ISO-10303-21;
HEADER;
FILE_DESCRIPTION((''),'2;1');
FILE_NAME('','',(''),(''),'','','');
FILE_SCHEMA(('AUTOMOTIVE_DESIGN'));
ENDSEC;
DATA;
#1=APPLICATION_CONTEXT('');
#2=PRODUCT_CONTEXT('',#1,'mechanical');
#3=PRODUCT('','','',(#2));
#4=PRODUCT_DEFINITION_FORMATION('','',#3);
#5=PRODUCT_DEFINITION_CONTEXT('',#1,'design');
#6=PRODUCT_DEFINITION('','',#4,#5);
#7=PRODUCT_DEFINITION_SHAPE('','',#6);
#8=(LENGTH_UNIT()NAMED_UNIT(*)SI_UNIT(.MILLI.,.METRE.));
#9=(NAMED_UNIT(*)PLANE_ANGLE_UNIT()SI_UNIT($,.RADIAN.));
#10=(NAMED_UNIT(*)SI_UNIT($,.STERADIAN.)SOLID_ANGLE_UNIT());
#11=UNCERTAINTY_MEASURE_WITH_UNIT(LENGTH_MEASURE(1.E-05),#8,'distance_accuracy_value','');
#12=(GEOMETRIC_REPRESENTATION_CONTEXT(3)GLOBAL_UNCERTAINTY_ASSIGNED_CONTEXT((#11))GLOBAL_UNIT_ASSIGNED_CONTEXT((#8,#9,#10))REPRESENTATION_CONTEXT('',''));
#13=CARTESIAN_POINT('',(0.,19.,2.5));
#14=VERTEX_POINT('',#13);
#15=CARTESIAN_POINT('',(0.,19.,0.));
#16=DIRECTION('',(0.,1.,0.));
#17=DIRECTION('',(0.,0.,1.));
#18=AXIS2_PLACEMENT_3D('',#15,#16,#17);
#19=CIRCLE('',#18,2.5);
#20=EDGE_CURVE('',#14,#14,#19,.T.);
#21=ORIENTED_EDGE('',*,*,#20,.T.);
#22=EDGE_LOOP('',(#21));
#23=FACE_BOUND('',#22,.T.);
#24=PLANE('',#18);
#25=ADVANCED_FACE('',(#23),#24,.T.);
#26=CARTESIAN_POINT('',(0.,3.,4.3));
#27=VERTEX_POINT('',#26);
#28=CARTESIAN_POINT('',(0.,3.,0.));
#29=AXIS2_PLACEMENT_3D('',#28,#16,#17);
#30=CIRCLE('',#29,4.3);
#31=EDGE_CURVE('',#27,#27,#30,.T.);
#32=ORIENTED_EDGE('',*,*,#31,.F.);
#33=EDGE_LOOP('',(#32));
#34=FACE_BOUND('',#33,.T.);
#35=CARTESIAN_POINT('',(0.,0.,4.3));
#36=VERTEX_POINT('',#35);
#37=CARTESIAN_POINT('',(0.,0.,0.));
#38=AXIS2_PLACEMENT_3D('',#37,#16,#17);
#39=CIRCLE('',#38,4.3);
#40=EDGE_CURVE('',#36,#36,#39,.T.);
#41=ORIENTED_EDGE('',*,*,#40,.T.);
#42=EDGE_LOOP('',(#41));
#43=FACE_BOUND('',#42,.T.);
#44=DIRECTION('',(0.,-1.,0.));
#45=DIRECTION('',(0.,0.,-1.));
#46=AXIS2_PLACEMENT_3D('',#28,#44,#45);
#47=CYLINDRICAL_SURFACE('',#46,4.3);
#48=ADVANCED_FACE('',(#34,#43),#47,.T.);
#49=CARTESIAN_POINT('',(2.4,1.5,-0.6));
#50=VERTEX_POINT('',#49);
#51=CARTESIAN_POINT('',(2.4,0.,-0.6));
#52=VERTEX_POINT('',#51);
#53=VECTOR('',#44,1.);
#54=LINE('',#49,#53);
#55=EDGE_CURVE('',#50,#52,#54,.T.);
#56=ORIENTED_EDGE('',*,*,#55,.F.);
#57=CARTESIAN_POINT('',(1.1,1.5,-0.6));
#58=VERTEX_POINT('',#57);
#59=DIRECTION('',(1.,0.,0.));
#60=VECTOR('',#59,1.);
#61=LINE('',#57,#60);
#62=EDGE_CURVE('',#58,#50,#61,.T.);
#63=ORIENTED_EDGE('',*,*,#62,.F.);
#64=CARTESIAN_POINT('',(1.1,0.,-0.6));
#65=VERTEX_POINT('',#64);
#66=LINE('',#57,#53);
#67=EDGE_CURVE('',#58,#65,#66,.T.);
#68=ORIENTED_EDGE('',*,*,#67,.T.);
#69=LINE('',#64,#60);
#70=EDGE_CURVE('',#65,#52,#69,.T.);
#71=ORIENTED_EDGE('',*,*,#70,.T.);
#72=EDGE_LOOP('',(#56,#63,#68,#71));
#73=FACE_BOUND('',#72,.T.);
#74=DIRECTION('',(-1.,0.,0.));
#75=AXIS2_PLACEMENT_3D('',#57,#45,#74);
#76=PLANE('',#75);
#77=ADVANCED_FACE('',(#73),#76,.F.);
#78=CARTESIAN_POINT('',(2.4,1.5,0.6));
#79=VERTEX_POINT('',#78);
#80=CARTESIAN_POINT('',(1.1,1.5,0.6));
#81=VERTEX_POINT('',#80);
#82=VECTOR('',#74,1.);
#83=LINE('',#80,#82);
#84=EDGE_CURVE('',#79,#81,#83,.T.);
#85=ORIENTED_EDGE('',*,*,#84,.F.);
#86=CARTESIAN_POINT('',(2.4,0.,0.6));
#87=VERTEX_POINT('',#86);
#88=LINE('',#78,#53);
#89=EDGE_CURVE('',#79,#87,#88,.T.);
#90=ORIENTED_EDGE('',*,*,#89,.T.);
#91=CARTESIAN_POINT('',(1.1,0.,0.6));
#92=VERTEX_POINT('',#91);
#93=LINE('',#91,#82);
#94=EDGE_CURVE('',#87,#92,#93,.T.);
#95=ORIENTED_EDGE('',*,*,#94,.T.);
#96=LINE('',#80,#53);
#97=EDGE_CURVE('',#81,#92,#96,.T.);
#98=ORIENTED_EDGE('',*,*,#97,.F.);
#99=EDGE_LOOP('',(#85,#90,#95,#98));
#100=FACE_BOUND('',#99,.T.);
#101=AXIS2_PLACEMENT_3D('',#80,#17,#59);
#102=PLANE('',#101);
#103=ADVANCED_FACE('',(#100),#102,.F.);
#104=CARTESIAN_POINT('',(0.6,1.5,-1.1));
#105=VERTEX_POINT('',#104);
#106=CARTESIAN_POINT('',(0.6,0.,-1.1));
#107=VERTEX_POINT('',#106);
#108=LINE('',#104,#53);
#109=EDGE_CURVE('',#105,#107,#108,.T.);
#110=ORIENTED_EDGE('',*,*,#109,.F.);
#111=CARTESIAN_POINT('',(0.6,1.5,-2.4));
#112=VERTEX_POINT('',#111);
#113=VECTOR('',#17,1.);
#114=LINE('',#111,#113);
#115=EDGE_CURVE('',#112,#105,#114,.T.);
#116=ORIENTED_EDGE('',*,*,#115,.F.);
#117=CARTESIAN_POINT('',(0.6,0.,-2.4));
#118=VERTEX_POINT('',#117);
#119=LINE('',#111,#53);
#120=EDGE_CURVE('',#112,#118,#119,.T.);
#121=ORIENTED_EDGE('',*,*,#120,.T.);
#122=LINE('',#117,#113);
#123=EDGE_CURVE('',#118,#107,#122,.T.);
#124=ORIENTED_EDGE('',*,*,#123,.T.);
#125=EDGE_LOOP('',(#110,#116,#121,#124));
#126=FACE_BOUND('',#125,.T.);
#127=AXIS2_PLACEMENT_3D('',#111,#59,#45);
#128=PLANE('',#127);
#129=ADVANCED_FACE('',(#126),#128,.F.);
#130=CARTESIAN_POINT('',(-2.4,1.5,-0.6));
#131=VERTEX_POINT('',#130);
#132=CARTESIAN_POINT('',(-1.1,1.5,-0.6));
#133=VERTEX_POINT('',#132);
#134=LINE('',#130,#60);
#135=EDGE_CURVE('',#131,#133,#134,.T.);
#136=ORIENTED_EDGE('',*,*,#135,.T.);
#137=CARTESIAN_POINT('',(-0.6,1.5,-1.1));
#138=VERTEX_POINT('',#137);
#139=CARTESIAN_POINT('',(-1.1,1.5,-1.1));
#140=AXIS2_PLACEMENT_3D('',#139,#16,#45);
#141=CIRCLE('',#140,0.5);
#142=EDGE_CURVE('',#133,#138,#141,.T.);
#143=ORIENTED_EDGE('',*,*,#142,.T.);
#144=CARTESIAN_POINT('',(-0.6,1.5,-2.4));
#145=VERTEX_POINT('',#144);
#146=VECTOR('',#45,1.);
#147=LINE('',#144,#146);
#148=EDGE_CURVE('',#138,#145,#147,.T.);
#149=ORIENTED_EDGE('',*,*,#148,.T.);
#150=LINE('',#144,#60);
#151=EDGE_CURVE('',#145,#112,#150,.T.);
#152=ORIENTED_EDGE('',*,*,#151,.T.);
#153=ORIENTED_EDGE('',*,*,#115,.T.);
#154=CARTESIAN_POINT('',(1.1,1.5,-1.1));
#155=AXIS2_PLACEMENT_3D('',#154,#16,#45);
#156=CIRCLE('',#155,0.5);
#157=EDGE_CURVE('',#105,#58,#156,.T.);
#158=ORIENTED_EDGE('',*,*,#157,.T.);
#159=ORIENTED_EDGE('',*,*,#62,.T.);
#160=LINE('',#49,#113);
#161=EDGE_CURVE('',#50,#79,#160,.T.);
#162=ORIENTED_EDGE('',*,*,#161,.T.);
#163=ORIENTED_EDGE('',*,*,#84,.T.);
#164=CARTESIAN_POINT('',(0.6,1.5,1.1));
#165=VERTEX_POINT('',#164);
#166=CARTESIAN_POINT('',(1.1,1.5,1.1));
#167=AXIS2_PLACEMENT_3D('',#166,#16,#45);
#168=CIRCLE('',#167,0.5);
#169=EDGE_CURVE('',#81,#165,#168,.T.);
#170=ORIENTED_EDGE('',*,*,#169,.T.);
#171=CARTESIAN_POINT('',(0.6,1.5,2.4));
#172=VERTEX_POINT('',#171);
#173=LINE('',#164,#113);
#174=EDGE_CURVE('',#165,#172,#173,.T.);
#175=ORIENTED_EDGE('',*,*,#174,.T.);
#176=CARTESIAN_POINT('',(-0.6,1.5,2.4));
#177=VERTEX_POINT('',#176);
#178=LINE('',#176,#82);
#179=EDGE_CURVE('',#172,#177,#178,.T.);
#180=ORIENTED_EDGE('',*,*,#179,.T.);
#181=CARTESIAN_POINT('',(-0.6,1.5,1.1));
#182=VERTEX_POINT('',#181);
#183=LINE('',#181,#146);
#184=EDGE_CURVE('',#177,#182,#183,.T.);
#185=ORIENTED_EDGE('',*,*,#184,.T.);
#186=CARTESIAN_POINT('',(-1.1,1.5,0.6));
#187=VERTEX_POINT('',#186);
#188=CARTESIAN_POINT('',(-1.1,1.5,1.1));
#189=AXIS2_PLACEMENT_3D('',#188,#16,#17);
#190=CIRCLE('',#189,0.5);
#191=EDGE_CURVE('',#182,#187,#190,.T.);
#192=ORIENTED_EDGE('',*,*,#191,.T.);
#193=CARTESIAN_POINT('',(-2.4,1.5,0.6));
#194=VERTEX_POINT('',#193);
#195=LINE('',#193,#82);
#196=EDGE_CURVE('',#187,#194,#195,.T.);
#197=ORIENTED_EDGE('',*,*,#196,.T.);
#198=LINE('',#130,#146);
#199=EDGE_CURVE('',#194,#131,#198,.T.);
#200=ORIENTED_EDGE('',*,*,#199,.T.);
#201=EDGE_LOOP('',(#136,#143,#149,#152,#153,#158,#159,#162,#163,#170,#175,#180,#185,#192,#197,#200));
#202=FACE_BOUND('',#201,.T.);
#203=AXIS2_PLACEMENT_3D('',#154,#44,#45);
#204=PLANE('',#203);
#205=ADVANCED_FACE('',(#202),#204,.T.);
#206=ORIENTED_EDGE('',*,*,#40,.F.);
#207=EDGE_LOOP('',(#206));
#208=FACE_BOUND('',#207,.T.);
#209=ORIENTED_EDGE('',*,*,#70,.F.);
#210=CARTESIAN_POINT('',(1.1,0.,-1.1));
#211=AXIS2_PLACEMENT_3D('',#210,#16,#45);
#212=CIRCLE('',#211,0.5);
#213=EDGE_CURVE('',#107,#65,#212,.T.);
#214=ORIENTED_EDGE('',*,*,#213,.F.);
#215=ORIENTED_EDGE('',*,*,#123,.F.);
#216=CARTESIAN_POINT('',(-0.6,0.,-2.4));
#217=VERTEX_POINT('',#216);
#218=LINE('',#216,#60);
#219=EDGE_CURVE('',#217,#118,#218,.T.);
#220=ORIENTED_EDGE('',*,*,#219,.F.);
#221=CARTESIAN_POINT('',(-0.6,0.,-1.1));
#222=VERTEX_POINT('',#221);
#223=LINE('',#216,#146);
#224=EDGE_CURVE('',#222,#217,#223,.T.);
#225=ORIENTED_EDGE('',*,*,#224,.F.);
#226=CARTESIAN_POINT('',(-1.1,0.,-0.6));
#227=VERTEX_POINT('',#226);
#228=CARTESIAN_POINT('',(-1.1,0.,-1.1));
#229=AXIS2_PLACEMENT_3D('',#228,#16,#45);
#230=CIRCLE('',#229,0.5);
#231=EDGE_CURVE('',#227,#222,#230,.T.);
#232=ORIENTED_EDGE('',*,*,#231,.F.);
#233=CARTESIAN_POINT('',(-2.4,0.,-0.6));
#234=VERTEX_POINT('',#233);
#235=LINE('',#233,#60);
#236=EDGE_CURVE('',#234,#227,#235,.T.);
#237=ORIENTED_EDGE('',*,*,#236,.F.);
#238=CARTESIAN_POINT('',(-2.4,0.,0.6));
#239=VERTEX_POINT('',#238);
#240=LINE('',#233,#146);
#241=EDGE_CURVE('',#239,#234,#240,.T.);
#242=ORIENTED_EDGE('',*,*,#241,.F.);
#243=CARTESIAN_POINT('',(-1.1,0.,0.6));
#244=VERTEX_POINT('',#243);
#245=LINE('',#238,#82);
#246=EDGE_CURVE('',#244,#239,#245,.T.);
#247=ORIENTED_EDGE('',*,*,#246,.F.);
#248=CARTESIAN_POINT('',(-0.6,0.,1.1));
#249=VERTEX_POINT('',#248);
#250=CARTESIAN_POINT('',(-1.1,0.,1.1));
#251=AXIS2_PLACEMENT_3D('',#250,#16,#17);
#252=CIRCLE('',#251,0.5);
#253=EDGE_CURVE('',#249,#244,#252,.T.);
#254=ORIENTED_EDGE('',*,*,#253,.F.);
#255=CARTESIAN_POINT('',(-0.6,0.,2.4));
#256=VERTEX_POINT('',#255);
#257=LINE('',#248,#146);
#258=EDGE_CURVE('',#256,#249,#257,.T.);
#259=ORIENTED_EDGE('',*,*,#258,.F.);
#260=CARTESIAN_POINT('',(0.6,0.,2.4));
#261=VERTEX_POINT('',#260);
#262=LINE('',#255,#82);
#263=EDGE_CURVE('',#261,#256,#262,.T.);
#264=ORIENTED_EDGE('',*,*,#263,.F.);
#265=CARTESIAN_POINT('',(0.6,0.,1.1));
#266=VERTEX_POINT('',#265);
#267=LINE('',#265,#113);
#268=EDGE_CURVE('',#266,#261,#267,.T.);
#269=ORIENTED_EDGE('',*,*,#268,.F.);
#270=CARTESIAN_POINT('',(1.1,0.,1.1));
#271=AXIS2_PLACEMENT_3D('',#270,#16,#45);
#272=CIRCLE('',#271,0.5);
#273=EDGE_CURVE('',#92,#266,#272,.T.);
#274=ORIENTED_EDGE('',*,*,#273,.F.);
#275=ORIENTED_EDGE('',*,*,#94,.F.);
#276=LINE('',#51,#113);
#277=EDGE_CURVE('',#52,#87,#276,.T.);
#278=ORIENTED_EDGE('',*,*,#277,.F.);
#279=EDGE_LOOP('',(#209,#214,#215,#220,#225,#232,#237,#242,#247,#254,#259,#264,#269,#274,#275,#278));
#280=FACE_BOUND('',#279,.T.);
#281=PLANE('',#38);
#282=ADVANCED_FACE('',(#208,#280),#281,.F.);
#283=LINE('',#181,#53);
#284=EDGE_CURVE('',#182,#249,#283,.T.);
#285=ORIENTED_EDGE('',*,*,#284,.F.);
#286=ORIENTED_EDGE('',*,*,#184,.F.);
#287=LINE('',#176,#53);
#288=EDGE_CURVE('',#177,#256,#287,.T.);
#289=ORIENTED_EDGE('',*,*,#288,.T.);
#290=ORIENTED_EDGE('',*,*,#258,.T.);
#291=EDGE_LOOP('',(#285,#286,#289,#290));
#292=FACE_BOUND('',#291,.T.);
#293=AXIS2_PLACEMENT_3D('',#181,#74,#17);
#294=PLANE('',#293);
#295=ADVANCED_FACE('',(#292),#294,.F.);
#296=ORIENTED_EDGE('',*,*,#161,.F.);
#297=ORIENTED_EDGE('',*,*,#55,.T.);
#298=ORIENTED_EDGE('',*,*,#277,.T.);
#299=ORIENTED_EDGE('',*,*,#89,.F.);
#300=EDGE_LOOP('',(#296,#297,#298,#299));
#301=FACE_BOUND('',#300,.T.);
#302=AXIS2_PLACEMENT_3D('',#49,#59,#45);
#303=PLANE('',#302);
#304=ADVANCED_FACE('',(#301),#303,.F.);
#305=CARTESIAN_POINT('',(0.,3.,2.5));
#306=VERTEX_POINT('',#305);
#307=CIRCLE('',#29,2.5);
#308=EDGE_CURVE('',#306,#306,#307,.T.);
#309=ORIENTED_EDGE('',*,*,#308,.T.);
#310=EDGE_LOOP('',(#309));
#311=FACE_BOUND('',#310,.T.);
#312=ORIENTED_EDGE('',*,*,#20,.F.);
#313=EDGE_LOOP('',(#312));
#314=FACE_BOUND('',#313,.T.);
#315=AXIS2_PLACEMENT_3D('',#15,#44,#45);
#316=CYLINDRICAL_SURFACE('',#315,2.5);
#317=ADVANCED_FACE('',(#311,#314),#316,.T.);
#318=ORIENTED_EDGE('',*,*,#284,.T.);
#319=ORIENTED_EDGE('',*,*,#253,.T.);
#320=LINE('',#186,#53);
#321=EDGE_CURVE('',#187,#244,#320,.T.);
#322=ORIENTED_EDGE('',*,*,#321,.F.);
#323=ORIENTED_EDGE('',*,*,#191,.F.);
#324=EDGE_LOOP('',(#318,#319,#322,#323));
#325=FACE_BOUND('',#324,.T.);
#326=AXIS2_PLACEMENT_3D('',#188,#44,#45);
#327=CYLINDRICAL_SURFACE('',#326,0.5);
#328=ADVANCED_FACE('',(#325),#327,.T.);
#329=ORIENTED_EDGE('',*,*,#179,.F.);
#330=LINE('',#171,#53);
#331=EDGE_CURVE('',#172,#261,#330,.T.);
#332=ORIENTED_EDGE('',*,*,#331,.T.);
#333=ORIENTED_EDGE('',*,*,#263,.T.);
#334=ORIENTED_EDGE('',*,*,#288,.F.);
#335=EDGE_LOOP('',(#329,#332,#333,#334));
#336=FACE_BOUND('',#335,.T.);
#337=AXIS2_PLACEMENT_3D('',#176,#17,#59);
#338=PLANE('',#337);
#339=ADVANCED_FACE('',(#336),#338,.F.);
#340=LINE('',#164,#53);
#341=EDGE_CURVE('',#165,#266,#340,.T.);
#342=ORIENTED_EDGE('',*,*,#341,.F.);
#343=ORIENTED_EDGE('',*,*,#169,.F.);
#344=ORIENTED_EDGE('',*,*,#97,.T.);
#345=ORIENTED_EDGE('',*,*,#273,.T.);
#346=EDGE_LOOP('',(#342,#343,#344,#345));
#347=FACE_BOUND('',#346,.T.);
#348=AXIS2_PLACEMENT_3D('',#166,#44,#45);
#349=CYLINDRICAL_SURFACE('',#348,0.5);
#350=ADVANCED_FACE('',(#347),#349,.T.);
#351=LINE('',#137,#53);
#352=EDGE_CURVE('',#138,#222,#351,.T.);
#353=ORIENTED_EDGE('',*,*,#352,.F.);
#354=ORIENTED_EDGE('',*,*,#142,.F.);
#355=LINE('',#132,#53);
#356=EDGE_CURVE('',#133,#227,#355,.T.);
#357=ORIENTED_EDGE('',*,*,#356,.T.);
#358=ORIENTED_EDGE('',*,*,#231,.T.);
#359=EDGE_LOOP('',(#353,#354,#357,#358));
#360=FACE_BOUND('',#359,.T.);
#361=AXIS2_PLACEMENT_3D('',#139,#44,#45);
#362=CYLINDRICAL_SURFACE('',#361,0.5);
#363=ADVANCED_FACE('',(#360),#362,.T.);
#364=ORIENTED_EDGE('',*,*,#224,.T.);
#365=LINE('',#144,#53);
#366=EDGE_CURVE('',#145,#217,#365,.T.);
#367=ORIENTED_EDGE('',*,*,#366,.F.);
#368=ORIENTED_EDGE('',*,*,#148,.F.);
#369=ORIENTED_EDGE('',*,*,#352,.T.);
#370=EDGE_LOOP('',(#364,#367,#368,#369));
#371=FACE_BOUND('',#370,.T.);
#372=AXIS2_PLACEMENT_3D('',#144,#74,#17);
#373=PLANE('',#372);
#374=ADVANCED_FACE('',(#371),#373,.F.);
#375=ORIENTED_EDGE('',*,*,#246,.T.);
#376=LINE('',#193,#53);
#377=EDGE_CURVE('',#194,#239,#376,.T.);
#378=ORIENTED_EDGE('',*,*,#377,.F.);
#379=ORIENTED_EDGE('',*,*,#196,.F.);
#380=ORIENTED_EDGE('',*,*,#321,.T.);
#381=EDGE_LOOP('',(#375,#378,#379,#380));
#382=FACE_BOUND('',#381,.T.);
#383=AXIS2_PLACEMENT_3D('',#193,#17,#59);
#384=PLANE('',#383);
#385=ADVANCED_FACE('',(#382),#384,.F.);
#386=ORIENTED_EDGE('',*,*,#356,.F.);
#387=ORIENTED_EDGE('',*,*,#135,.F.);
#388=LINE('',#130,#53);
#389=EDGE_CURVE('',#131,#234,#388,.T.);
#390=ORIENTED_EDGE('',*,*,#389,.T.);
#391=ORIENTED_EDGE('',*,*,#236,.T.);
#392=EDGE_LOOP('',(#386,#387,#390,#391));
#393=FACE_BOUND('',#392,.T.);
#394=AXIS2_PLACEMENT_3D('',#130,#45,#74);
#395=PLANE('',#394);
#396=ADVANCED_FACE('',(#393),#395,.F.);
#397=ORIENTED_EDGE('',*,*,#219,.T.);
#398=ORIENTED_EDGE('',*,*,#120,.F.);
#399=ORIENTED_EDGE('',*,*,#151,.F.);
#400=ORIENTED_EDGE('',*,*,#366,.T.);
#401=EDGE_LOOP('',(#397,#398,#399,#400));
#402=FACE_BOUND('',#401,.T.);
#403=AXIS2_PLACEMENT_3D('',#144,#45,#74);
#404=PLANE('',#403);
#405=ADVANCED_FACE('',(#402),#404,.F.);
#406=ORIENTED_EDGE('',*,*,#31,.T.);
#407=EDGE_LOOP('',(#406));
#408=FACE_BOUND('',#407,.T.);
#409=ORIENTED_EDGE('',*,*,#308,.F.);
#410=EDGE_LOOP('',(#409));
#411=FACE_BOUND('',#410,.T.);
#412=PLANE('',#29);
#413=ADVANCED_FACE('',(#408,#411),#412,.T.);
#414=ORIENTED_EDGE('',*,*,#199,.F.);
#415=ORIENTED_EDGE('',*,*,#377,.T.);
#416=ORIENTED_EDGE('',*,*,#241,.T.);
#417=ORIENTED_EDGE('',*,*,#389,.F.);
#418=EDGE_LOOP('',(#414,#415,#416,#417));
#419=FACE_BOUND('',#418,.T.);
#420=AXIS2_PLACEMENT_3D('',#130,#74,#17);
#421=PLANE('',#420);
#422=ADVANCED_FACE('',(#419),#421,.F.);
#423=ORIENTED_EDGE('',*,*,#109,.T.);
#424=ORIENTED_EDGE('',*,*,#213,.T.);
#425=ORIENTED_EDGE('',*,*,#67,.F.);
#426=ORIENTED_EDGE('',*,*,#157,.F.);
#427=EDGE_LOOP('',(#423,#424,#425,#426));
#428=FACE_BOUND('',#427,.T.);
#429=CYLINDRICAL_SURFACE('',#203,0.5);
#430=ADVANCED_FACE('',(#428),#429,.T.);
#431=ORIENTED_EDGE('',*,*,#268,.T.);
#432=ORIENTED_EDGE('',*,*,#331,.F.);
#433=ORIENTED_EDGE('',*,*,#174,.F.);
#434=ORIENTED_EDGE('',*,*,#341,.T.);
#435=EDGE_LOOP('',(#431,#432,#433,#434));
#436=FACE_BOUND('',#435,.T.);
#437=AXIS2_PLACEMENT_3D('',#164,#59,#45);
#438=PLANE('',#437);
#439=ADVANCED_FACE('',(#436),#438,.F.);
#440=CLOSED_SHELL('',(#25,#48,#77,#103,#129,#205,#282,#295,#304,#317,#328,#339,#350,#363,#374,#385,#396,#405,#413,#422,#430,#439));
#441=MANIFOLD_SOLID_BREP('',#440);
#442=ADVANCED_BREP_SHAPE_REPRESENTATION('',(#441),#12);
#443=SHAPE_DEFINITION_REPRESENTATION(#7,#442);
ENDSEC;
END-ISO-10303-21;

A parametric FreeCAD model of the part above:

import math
import FreeCAD as App
import Part
import Sketcher

V = App.Vector
Q = App.Units.Quantity

doc = App.newDocument("Part")
body = doc.addObject("PartDesign::Body", "Body")

sketch1 = body.newObject("Sketcher::SketchObject", "Sketch")
sketch1.AttachmentSupport = (doc.getObject("XZ_Plane"), [""])
sketch1.MapMode = "FlatFace"
sketch1.addGeometry(Part.Circle(V(0, 0, 0), V(0, 0, 1), 4.3), False)
sketch1.addConstraint([
    Sketcher.Constraint("Coincident", 0, 3, -1, 1),
    Sketcher.Constraint("Diameter", 0, Q("8.6 mm")),
])
pad1 = body.newObject("PartDesign::Pad", "Pad")
pad1.Profile = sketch1
pad1.Length = 3
pad1.Reversed = True

sketch2 = body.newObject("Sketcher::SketchObject", "Sketch001")
sketch2.AttachmentSupport = (doc.getObject("XZ_Plane"), [""])
sketch2.MapMode = "FlatFace"
sketch2.AttachmentOffset = App.Placement(V(0, 0, -3), App.Rotation())
sketch2.addGeometry(Part.Circle(V(0, 0, 0), V(0, 0, 1), 2.5), False)
sketch2.addConstraint([
    Sketcher.Constraint("Coincident", 0, 3, -1, 1),
    Sketcher.Constraint("Diameter", 0, Q("5 mm")),
])
pad2 = body.newObject("PartDesign::Pad", "Pad001")
pad2.Profile = sketch2
pad2.Length = 16
pad2.Reversed = True

sketch3 = body.newObject("Sketcher::SketchObject", "Sketch002")
sketch3.AttachmentSupport = (doc.getObject("XZ_Plane"), [""])
sketch3.MapMode = "FlatFace"
sketch3.addGeometry([
    Part.LineSegment(V(-0.6, 2.4, 0), V(-0.6, 1.1, 0)),
    Part.ArcOfCircle(Part.Circle(V(-1.1, 1.1, 0), V(0, 0, 1), 0.5), math.radians(-90), math.radians(0)),
    Part.LineSegment(V(-1.1, 0.6, 0), V(-2.4, 0.6, 0)),
    Part.LineSegment(V(-2.4, 0.6, 0), V(-2.4, -0.6, 0)),
    Part.LineSegment(V(-2.4, -0.6, 0), V(-1.1, -0.6, 0)),
    Part.ArcOfCircle(Part.Circle(V(-1.1, -1.1, 0), V(0, 0, 1), 0.5), math.radians(0), math.radians(90)),
    Part.LineSegment(V(-0.6, -1.1, 0), V(-0.6, -2.4, 0)),
    Part.LineSegment(V(-0.6, -2.4, 0), V(0.6, -2.4, 0)),
    Part.LineSegment(V(0.6, -2.4, 0), V(0.6, -1.1, 0)),
    Part.ArcOfCircle(Part.Circle(V(1.1, -1.1, 0), V(0, 0, 1), 0.5), math.radians(90), math.radians(180)),
    Part.LineSegment(V(1.1, -0.6, 0), V(2.4, -0.6, 0)),
    Part.LineSegment(V(2.4, -0.6, 0), V(2.4, 0.6, 0)),
    Part.LineSegment(V(2.4, 0.6, 0), V(1.1, 0.6, 0)),
    Part.ArcOfCircle(Part.Circle(V(1.1, 1.1, 0), V(0, 0, 1), 0.5), math.radians(180), math.radians(270)),
    Part.LineSegment(V(0.6, 1.1, 0), V(0.6, 2.4, 0)),
    Part.LineSegment(V(0.6, 2.4, 0), V(-0.6, 2.4, 0)),
], False)
sketch3.addConstraint([
    Sketcher.Constraint("Tangent", 0, 2, 1, 2),
    Sketcher.Constraint("Tangent", 1, 1, 2, 1),
    Sketcher.Constraint("Coincident", 2, 2, 3, 1),
    Sketcher.Constraint("Coincident", 3, 2, 4, 1),
    Sketcher.Constraint("Tangent", 4, 2, 5, 2),
    Sketcher.Constraint("Tangent", 5, 1, 6, 1),
    Sketcher.Constraint("Coincident", 6, 2, 7, 1),
    Sketcher.Constraint("Coincident", 7, 2, 8, 1),
    Sketcher.Constraint("Tangent", 8, 2, 9, 2),
    Sketcher.Constraint("Tangent", 9, 1, 10, 1),
    Sketcher.Constraint("Coincident", 10, 2, 11, 1),
    Sketcher.Constraint("Coincident", 11, 2, 12, 1),
    Sketcher.Constraint("Tangent", 12, 2, 13, 2),
    Sketcher.Constraint("Tangent", 13, 1, 14, 1),
    Sketcher.Constraint("Coincident", 14, 2, 15, 1),
    Sketcher.Constraint("Coincident", 15, 2, 0, 1),
    Sketcher.Constraint("Vertical", 0),
    Sketcher.Constraint("Horizontal", 2),
    Sketcher.Constraint("Vertical", 3),
    Sketcher.Constraint("Horizontal", 4),
    Sketcher.Constraint("Vertical", 6),
    Sketcher.Constraint("Horizontal", 7),
    Sketcher.Constraint("Vertical", 8),
    Sketcher.Constraint("Horizontal", 10),
    Sketcher.Constraint("Vertical", 11),
    Sketcher.Constraint("Horizontal", 12),
    Sketcher.Constraint("Vertical", 14),
    Sketcher.Constraint("Horizontal", 15),
    Sketcher.Constraint("Equal", 1, 5),
    Sketcher.Constraint("Equal", 5, 9),
    Sketcher.Constraint("Equal", 9, 13),
    Sketcher.Constraint("Symmetric", 1, 3, 9, 3, -1, 1),
    Sketcher.Constraint("Symmetric", 5, 3, 13, 3, -1, 1),
    Sketcher.Constraint("Symmetric", 5, 3, 9, 3, -2),
    Sketcher.Constraint("Equal", 4, 10),
    Sketcher.Constraint("Equal", 12, 0),
    Sketcher.Constraint("Equal", 15, 3),
    Sketcher.Constraint("Equal", 0, 6),
    Sketcher.Constraint("Radius", 1, Q("0.5 mm")),
    Sketcher.Constraint("DistanceX", 2, 2, 2, 1, Q("1.3 mm")),
    Sketcher.Constraint("DistanceX", 7, 1, 7, 2, Q("1.2 mm")),
])
pocket1 = body.newObject("PartDesign::Pocket", "Pocket")
pocket1.Profile = sketch3
pocket1.Length = 1.5

doc.recompute()
